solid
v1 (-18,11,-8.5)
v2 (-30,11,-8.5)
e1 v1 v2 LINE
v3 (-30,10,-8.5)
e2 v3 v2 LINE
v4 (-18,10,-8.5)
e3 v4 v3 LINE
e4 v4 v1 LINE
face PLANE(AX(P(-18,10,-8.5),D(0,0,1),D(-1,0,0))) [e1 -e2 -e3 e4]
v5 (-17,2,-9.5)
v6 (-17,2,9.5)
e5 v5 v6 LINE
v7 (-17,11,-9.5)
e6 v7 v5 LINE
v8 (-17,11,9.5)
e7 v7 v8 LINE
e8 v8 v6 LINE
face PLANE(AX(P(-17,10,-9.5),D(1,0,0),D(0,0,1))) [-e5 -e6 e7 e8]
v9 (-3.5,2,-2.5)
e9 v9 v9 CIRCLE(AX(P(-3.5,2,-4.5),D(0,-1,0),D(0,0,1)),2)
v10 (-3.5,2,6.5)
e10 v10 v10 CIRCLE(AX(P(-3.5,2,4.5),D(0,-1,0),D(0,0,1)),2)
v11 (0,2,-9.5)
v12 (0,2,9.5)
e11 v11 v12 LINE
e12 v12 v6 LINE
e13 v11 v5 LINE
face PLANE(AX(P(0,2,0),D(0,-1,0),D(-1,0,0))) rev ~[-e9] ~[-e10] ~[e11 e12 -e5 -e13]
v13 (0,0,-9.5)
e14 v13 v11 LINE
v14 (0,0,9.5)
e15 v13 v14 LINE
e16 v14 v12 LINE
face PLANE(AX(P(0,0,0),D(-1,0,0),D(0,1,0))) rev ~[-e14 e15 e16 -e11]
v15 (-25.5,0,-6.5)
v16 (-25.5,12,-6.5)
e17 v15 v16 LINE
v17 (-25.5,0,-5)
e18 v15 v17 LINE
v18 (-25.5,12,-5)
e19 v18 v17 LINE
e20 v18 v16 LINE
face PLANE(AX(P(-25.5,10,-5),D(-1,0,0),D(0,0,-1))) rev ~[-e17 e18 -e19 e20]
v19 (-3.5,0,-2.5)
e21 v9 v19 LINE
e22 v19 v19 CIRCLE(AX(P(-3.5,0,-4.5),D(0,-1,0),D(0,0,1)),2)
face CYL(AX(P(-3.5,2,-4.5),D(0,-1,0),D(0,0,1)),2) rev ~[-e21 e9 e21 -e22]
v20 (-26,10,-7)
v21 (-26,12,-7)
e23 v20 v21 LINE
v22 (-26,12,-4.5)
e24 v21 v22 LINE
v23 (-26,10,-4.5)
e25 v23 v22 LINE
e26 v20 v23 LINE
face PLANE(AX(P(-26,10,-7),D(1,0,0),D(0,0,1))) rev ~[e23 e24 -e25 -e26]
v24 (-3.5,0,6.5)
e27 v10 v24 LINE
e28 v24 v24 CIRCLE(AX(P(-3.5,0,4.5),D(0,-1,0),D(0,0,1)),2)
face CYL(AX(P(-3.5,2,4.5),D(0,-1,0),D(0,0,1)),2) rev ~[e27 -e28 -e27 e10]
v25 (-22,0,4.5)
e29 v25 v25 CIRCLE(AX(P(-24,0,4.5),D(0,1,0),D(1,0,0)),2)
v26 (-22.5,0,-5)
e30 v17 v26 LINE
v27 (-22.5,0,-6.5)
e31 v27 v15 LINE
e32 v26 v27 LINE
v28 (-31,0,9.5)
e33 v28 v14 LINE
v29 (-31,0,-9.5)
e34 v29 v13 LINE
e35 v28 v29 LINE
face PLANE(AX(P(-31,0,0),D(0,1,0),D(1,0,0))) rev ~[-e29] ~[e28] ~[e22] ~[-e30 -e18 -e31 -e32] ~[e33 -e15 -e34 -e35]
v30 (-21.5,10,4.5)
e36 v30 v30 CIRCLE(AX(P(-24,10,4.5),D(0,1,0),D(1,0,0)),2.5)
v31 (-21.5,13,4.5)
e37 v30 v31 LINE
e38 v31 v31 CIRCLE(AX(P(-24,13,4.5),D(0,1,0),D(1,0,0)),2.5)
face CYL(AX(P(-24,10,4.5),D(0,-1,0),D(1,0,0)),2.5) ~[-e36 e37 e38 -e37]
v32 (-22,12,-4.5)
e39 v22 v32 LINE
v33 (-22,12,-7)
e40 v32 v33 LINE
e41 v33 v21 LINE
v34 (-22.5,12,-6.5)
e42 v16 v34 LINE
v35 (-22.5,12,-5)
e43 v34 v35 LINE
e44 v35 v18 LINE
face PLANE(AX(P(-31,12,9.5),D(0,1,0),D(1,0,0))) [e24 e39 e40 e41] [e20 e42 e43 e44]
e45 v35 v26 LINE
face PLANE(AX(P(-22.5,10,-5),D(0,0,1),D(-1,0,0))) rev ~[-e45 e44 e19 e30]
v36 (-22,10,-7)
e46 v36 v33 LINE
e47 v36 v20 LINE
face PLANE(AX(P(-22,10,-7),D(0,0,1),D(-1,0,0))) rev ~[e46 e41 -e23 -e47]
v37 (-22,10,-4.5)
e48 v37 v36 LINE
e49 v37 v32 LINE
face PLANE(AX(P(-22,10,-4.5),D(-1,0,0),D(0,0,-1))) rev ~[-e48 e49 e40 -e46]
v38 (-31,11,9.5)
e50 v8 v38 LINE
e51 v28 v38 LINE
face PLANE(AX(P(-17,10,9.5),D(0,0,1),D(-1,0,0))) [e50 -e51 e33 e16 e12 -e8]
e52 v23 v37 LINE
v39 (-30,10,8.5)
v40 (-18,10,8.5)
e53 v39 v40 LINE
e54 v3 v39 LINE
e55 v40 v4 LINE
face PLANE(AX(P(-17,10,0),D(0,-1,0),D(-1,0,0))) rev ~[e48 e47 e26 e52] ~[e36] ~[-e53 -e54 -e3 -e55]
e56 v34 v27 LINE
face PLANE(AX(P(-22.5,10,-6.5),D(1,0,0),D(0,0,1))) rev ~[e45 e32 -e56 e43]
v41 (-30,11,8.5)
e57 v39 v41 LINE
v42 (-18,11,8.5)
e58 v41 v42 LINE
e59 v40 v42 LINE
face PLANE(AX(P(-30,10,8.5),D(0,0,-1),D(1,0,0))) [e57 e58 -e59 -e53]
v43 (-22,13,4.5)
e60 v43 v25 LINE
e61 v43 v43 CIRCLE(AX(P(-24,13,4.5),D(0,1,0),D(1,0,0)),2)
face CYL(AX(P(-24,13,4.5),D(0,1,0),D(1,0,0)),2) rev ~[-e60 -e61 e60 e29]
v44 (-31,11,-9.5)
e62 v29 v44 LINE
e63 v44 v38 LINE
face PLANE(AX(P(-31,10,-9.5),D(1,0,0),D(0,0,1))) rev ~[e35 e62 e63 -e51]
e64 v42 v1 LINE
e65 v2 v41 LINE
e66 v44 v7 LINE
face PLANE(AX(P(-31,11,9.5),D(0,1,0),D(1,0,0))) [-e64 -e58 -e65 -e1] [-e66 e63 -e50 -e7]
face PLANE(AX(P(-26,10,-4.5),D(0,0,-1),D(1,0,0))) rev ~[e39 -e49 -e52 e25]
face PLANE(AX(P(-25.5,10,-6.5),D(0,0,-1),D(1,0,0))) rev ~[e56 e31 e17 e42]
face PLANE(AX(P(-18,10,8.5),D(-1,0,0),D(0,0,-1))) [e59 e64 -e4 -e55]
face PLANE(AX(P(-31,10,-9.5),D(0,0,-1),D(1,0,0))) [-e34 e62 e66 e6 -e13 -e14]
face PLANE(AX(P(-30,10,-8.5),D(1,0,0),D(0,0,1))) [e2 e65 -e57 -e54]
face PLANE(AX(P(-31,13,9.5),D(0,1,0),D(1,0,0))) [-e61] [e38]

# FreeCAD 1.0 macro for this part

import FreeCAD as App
import Part
import Sketcher
Q = App.Units.Quantity

doc = App.newDocument("Part")
params = doc.addObject("Spreadsheet::Sheet", "Params")
for row, (alias, value) in enumerate([
    ("sketch1_width", "17 mm"),
    ("sketch1_width2", "14 mm"),
    ("sketch1_height", "2 mm"),
    ("sketch1_height2", "10 mm"),
    ("pad1_length", "19 mm"),
    ("sketch2_diameter", "5 mm"),
    ("pad2_length", "3 mm"),
    ("sketch3_diameter", "4 mm"),
    ("sketch4_width", "3 mm"),
    ("sketch4_height", "1.5 mm"),
    ("sketch5_width", "4 mm"),
    ("sketch5_height", "2.5 mm"),
    ("pad3_length", "2 mm"),
    ("sketch6_width", "14 mm"),
    ("sketch6_height", "19 mm"),
    ("pad4_length", "1 mm"),
    ("sketch7_diameter", "4 mm"),
    ("hole_diameter", "4 mm"),
    ("hole_depth", "50 mm"),
], start=1):
    params.set(f"A{row}", alias)
    params.set(f"B{row}", "=" + value)
    params.setAlias(f"B{row}", alias)

body = doc.addObject("PartDesign::Body", "Body")

# Sketch on XY plane
sketch1 = body.newObject("Sketcher::SketchObject", "Sketch")
sketch1.AttachmentSupport = (doc.getObject("XY_Plane"), [""])
sketch1.MapMode = "FlatFace"
sketch1.addGeometry([
    Part.LineSegment(App.Vector(-31, 0, 0), App.Vector(0, 0, 0)),  # 0
    Part.LineSegment(App.Vector(0, 0, 0), App.Vector(0, 2, 0)),  # 1
    Part.LineSegment(App.Vector(0, 2, 0), App.Vector(-17, 2, 0)),  # 2
    Part.LineSegment(App.Vector(-17, 2, 0), App.Vector(-17, 10, 0)),  # 3
    Part.LineSegment(App.Vector(-17, 10, 0), App.Vector(-31, 10, 0)),  # 4
    Part.LineSegment(App.Vector(-31, 10, 0), App.Vector(-31, 0, 0)),  # 5
], False)
sketch1.addConstraint([
    Sketcher.Constraint("Coincident", 0, 2, 1, 1),
    Sketcher.Constraint("Coincident", 1, 2, 2, 1),
    Sketcher.Constraint("Coincident", 2, 2, 3, 1),
    Sketcher.Constraint("Coincident", 3, 2, 4, 1),
    Sketcher.Constraint("Coincident", 4, 2, 5, 1),
    Sketcher.Constraint("Coincident", 5, 2, 0, 1),
    Sketcher.Constraint("Horizontal", 0),
    Sketcher.Constraint("Vertical", 1),
    Sketcher.Constraint("Horizontal", 2),
    Sketcher.Constraint("Vertical", 3),
    Sketcher.Constraint("Horizontal", 4),
    Sketcher.Constraint("Vertical", 5),
    Sketcher.Constraint("Coincident", 0, 2, -1, 1),
    Sketcher.Constraint("DistanceX", 2, 2, 2, 1, Q("17 mm")),
    Sketcher.Constraint("DistanceX", 4, 2, 4, 1, Q("14 mm")),
    Sketcher.Constraint("DistanceY", 1, 1, 1, 2, Q("2 mm")),
    Sketcher.Constraint("DistanceY", 5, 2, 5, 1, Q("10 mm")),
])
sketch1.setExpression("Constraints[13]", "Params.sketch1_width")
sketch1.setExpression("Constraints[14]", "Params.sketch1_width2")
sketch1.setExpression("Constraints[15]", "Params.sketch1_height")
sketch1.setExpression("Constraints[16]", "Params.sketch1_height2")
pad1 = body.newObject("PartDesign::Pad", "Pad")
pad1.Profile = sketch1
pad1.setExpression("Length", "Params.pad1_length")
pad1.Midplane = True

# Sketch on XZ plane
sketch2 = body.newObject("Sketcher::SketchObject", "Sketch001")
sketch2.AttachmentSupport = (doc.getObject("XZ_Plane"), [""])
sketch2.MapMode = "FlatFace"
sketch2.AttachmentOffset = App.Placement(App.Vector(0, 0, -10), App.Rotation())
sketch2.addGeometry(Part.Circle(App.Vector(-24, 4.5, 0), App.Vector(0, 0, 1), 2.5), False)
sketch2.addConstraint([
    Sketcher.Constraint("Diameter", 0, Q("5 mm")),
    Sketcher.Constraint("DistanceX", 0, 3, -1, 1, Q("24 mm")),
    Sketcher.Constraint("DistanceY", -1, 1, 0, 3, Q("4.5 mm")),
])
sketch2.setExpression("Constraints[0]", "Params.sketch2_diameter")
pad2 = body.newObject("PartDesign::Pad", "Pad001")
pad2.Profile = sketch2
pad2.setExpression("Length", "Params.pad2_length")
pad2.Reversed = True

# Sketch on XZ plane
sketch3 = body.newObject("Sketcher::SketchObject", "Sketch002")
sketch3.AttachmentSupport = (doc.getObject("XZ_Plane"), [""])
sketch3.MapMode = "FlatFace"
sketch3.AttachmentOffset = App.Placement(App.Vector(0, 0, -13), App.Rotation())
sketch3.addGeometry(Part.Circle(App.Vector(-24, 4.5, 0), App.Vector(0, 0, 1), 2), False)
sketch3.addConstraint([
    Sketcher.Constraint("Diameter", 0, Q("4 mm")),
    Sketcher.Constraint("DistanceX", 0, 3, -1, 1, Q("24 mm")),
    Sketcher.Constraint("DistanceY", -1, 1, 0, 3, Q("4.5 mm")),
])
sketch3.setExpression("Constraints[0]", "Params.sketch3_diameter")
pocket1 = body.newObject("PartDesign::Pocket", "Pocket")
pocket1.Profile = sketch3
pocket1.Type = "ThroughAll"
pocket1.Reversed = True

# Sketch on XZ plane
sketch4 = body.newObject("Sketcher::SketchObject", "Sketch003")
sketch4.AttachmentSupport = (doc.getObject("XZ_Plane"), [""])
sketch4.MapMode = "FlatFace"
sketch4.AttachmentOffset = App.Placement(App.Vector(0, 0, -10), App.Rotation())
sketch4.addGeometry([
    Part.LineSegment(App.Vector(-25.5, -6.5, 0), App.Vector(-25.5, -5, 0)),
    Part.LineSegment(App.Vector(-25.5, -5, 0), App.Vector(-22.5, -5, 0)),
    Part.LineSegment(App.Vector(-22.5, -5, 0), App.Vector(-22.5, -6.5, 0)),
    Part.LineSegment(App.Vector(-22.5, -6.5, 0), App.Vector(-25.5, -6.5, 0)),
], False)
sketch4.addConstraint([
    Sketcher.Constraint("Coincident", 0, 2, 1, 1),
    Sketcher.Constraint("Coincident", 1, 2, 2, 1),
    Sketcher.Constraint("Coincident", 2, 2, 3, 1),
    Sketcher.Constraint("Coincident", 3, 2, 0, 1),
    Sketcher.Constraint("Vertical", 0),
    Sketcher.Constraint("Horizontal", 1),
    Sketcher.Constraint("Vertical", 2),
    Sketcher.Constraint("Horizontal", 3),
    Sketcher.Constraint("DistanceX", 1, 1, 1, 2, Q("3 mm")),
    Sketcher.Constraint("DistanceY", 0, 1, 0, 2, Q("1.5 mm")),
    Sketcher.Constraint("DistanceY", 0, 2, -1, 1, Q("5 mm")),
    Sketcher.Constraint("DistanceX", 0, 2, -1, 1, Q("25.5 mm")),
])
sketch4.setExpression("Constraints[8]", "Params.sketch4_width")
sketch4.setExpression("Constraints[9]", "Params.sketch4_height")
pocket2 = body.newObject("PartDesign::Pocket", "Pocket001")
pocket2.Profile = sketch4
pocket2.Type = "ThroughAll"
pocket2.Reversed = True

# Sketch on XZ plane
sketch5 = body.newObject("Sketcher::SketchObject", "Sketch004")
sketch5.AttachmentSupport = (doc.getObject("XZ_Plane"), [""])
sketch5.MapMode = "FlatFace"
sketch5.AttachmentOffset = App.Placement(App.Vector(0, 0, -10), App.Rotation())
sketch5.addGeometry([
    Part.LineSegment(App.Vector(-26, -7, 0), App.Vector(-26, -4.5, 0)),  # 0
    Part.LineSegment(App.Vector(-26, -4.5, 0), App.Vector(-22, -4.5, 0)),  # 1
    Part.LineSegment(App.Vector(-22, -4.5, 0), App.Vector(-22, -7, 0)),  # 2
    Part.LineSegment(App.Vector(-22, -7, 0), App.Vector(-26, -7, 0)),  # 3
    Part.LineSegment(App.Vector(-25.5, -5, 0), App.Vector(-25.5, -6.5, 0)),  # 4
    Part.LineSegment(App.Vector(-25.5, -6.5, 0), App.Vector(-22.5, -6.5, 0)),  # 5
    Part.LineSegment(App.Vector(-22.5, -6.5, 0), App.Vector(-22.5, -5, 0)),  # 6
    Part.LineSegment(App.Vector(-22.5, -5, 0), App.Vector(-25.5, -5, 0)),  # 7
], False)
sketch5.addConstraint([
    Sketcher.Constraint("Coincident", 0, 2, 1, 1),
    Sketcher.Constraint("Coincident", 1, 2, 2, 1),
    Sketcher.Constraint("Coincident", 2, 2, 3, 1),
    Sketcher.Constraint("Coincident", 3, 2, 0, 1),
    Sketcher.Constraint("Coincident", 4, 2, 5, 1),
    Sketcher.Constraint("Coincident", 5, 2, 6, 1),
    Sketcher.Constraint("Coincident", 6, 2, 7, 1),
    Sketcher.Constraint("Coincident", 7, 2, 4, 1),
    Sketcher.Constraint("Vertical", 0),
    Sketcher.Constraint("Horizontal", 1),
    Sketcher.Constraint("Vertical", 2),
    Sketcher.Constraint("Horizontal", 3),
    Sketcher.Constraint("Vertical", 4),
    Sketcher.Constraint("Horizontal", 5),
    Sketcher.Constraint("Vertical", 6),
    Sketcher.Constraint("Horizontal", 7),
    Sketcher.Constraint("DistanceX", 3, 2, 4, 2, Q("0.5 mm")),
    Sketcher.Constraint("DistanceY", 3, 2, 4, 2, Q("0.5 mm")),
    Sketcher.Constraint("DistanceX", 5, 2, 2, 2, Q("0.5 mm")),
    Sketcher.Constraint("DistanceY", 6, 2, 1, 2, Q("0.5 mm")),
    Sketcher.Constraint("DistanceX", 1, 1, 1, 2, Q("4 mm")),
    Sketcher.Constraint("DistanceY", 0, 1, 0, 2, Q("2.5 mm")),
    Sketcher.Constraint("DistanceX", 0, 2, -1, 1, Q("26 mm")),
    Sketcher.Constraint("DistanceY", 2, 2, -1, 1, Q("7 mm")),
])
sketch5.setExpression("Constraints[20]", "Params.sketch5_width")
sketch5.setExpression("Constraints[21]", "Params.sketch5_height")
pad3 = body.newObject("PartDesign::Pad", "Pad002")
pad3.Profile = sketch5
pad3.setExpression("Length", "Params.pad3_length")
pad3.Reversed = True

# Sketch on XZ plane
sketch6 = body.newObject("Sketcher::SketchObject", "Sketch005")
sketch6.AttachmentSupport = (doc.getObject("XZ_Plane"), [""])
sketch6.MapMode = "FlatFace"
sketch6.AttachmentOffset = App.Placement(App.Vector(0, 0, -10), App.Rotation())
sketch6.addGeometry([
    Part.LineSegment(App.Vector(-17, -10, 0), App.Vector(-31, -10, 0)),  # 0
    Part.LineSegment(App.Vector(-31, -10, 0), App.Vector(-31, 10, 0)),  # 1
    Part.LineSegment(App.Vector(-31, 10, 0), App.Vector(-17, 10, 0)),  # 2
    Part.LineSegment(App.Vector(-17, 10, 0), App.Vector(-17, -10, 0)),  # 3
    Part.LineSegment(App.Vector(-18, 8, 0), App.Vector(-30, 8, 0)),  # 4
    Part.LineSegment(App.Vector(-30, 8, 0), App.Vector(-30, -8, 0)),  # 5
    Part.LineSegment(App.Vector(-30, -8, 0), App.Vector(-18, -8, 0)),  # 6
    Part.LineSegment(App.Vector(-18, -8, 0), App.Vector(-18, 8, 0)),  # 7
], False)
sketch6.addConstraint([
    Sketcher.Constraint("Coincident", 0, 2, 1, 1),
    Sketcher.Constraint("Coincident", 1, 2, 2, 1),
    Sketcher.Constraint("Coincident", 2, 2, 3, 1),
    Sketcher.Constraint("Coincident", 3, 2, 0, 1),
    Sketcher.Constraint("Coincident", 4, 2, 5, 1),
    Sketcher.Constraint("Coincident", 5, 2, 6, 1),
    Sketcher.Constraint("Coincident", 6, 2, 7, 1),
    Sketcher.Constraint("Coincident", 7, 2, 4, 1),
    Sketcher.Constraint("Horizontal", 0),
    Sketcher.Constraint("Vertical", 1),
    Sketcher.Constraint("Horizontal", 2),
    Sketcher.Constraint("Vertical", 3),
    Sketcher.Constraint("Horizontal", 4),
    Sketcher.Constraint("Vertical", 5),
    Sketcher.Constraint("Horizontal", 6),
    Sketcher.Constraint("Vertical", 7),
    Sketcher.Constraint("DistanceX", 1, 2, 4, 2, Q("1 mm")),
    Sketcher.Constraint("DistanceY", 4, 2, 1, 2, Q("1 mm")),
    Sketcher.Constraint("DistanceY", 0, 2, 5, 2, Q("1 mm")),
    Sketcher.Constraint("DistanceX", 6, 2, 3, 2, Q("1 mm")),
    Sketcher.Constraint("DistanceX", 0, 2, 0, 1, Q("14 mm")),
    Sketcher.Constraint("DistanceY", 1, 1, 1, 2, Q("19 mm")),
    Sketcher.Constraint("DistanceX", 0, 2, -1, 1, Q("31 mm")),
    Sketcher.Constraint("DistanceY", 0, 2, -1, 1, Q("9.5 mm")),
])
sketch6.setExpression("Constraints[20]", "Params.sketch6_width")
sketch6.setExpression("Constraints[21]", "Params.sketch6_height")
pad4 = body.newObject("PartDesign::Pad", "Pad003")
pad4.Profile = sketch6
pad4.setExpression("Length", "Params.pad4_length")
pad4.Reversed = True

# Sketch on XZ plane
sketch7 = body.newObject("Sketcher::SketchObject", "Sketch006")
sketch7.AttachmentSupport = (doc.getObject("XZ_Plane"), [""])
sketch7.MapMode = "FlatFace"
sketch7.AttachmentOffset = App.Placement(App.Vector(0, 0, -2), App.Rotation())
sketch7.addGeometry([
    Part.Circle(App.Vector(-3.5, 4.5, 0), App.Vector(0, 0, 1), 2),
    Part.Circle(App.Vector(-3.5, -4.5, 0), App.Vector(0, 0, 1), 2),
], False)
sketch7.addConstraint([
    Sketcher.Constraint("Equal", 0, 1),
    Sketcher.Constraint("Symmetric", 0, 3, 1, 3, -1),
    Sketcher.Constraint("Diameter", 0, Q("4 mm")),
    Sketcher.Constraint("DistanceY", 1, 3, 0, 3, Q("9 mm")),
    Sketcher.Constraint("DistanceX", 0, 3, -1, 1, Q("3.5 mm")),
])
sketch7.setExpression("Constraints[2]", "Params.sketch7_diameter")
doc.recompute()
hole = body.newObject("PartDesign::Hole", "Hole")
hole.Profile = sketch7
hole.ThreadType = "None"
hole.setExpression("Diameter", "Params.hole_diameter")
hole.DepthType = "Dimension"
hole.setExpression("Depth", "Params.hole_depth")
hole.DrillPoint = "Angled"
hole.DrillPointAngle = 118
hole.Reversed = True

doc.recompute()
